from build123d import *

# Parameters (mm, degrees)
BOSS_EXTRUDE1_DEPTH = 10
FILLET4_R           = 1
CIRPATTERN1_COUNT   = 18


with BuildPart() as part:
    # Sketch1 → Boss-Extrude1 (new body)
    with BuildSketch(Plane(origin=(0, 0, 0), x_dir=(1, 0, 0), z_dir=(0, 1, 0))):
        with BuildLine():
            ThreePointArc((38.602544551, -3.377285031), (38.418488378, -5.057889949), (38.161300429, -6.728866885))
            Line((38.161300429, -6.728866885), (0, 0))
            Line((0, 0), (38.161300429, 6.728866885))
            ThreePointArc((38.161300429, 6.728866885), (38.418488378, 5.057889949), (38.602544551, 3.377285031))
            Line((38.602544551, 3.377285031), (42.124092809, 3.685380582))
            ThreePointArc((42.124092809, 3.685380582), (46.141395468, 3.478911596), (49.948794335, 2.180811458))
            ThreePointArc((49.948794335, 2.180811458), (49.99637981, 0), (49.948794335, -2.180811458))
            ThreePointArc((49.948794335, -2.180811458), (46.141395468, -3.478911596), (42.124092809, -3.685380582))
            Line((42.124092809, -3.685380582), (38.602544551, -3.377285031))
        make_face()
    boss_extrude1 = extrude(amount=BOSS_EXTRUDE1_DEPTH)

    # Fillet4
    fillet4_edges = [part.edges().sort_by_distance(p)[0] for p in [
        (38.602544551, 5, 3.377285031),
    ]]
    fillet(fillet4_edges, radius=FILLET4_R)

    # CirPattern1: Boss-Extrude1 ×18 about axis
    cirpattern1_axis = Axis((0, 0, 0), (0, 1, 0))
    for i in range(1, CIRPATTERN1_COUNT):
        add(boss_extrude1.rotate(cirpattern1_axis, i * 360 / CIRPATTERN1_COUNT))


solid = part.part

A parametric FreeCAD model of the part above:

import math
import FreeCAD as App
import Part
import Sketcher
Q = App.Units.Quantity


def edges_at(feature, points):
    """Names of the edges that pass closest to the given points."""
    edges = feature.Shape.Edges
    near = lambda p: min(range(len(edges)), key=lambda i: edges[i].distToShape(Part.Vertex(*p))[0])
    return sorted({f"Edge{near(p) + 1}" for p in points})

doc = App.newDocument("Part")
body = doc.addObject("PartDesign::Body", "Body")

sketch1 = body.newObject("Sketcher::SketchObject", "Sketch")
sketch1.AttachmentSupport = (doc.getObject("XZ_Plane"), [""])
sketch1.MapMode = "FlatFace"
sketch1.addGeometry([
    Part.ArcOfCircle(Part.Circle(App.Vector(0, 0, 0), App.Vector(0, 0, 1), 38.8), math.radians(5), math.radians(10)),
    Part.LineSegment(App.Vector(38.6, 3.4, 0), App.Vector(42.1, 3.7, 0)),
    Part.ArcOfCircle(Part.Circle(App.Vector(43.4, -10.8, 0), App.Vector(0, 0, 1), 14.6), math.radians(63), math.radians(95)),
    Part.ArcOfCircle(Part.Circle(App.Vector(0, 0, 0), App.Vector(0, 0, 1), 50), math.radians(-2.5), math.radians(2.5)),
    Part.ArcOfCircle(Part.Circle(App.Vector(43.4, 10.8, 0), App.Vector(0, 0, 1), 14.6), math.radians(-95), math.radians(-63)),
    Part.LineSegment(App.Vector(42.1, -3.7, 0), App.Vector(38.6, -3.4, 0)),
    Part.ArcOfCircle(Part.Circle(App.Vector(0, 0, 0), App.Vector(0, 0, 1), 38.8), math.radians(-10), math.radians(-5)),
    Part.LineSegment(App.Vector(38.2, -6.7, 0), App.Vector(0, 0, 0)),
    Part.LineSegment(App.Vector(0, 0, 0), App.Vector(38.2, 6.7, 0)),
], False)
sketch1.addConstraint([
    Sketcher.Constraint("Coincident", 0, 1, 1, 1),
    Sketcher.Constraint("Tangent", 1, 2, 2, 2),
    Sketcher.Constraint("Coincident", 2, 1, 3, 2),
    Sketcher.Constraint("Coincident", 3, 1, 4, 2),
    Sketcher.Constraint("Tangent", 4, 1, 5, 1),
    Sketcher.Constraint("Coincident", 5, 2, 6, 2),
    Sketcher.Constraint("Coincident", 6, 1, 7, 1),
    Sketcher.Constraint("Coincident", 7, 2, 8, 1),
    Sketcher.Constraint("Coincident", 8, 2, 0, 2),
    Sketcher.Constraint("Coincident", 0, 3, -1, 1),
    Sketcher.Constraint("Coincident", 3, 3, -1, 1),
    Sketcher.Constraint("Coincident", 6, 3, -1, 1),
    Sketcher.Constraint("Coincident", 7, 2, -1, 1),
    Sketcher.Constraint("Equal", 2, 4),
    Sketcher.Constraint("Equal", 0, 6),
    Sketcher.Constraint("Symmetric", 2, 3, 4, 3, -1),
    Sketcher.Constraint("Vertical", 1, 2, 4, 1),
    Sketcher.Constraint("Vertical", 6, 1, 8, 2),
    Sketcher.Constraint("Angle", 1, Q("5 deg")),
    Sketcher.Constraint("Angle", 7, Q("170 deg")),
    Sketcher.Constraint("Radius", 0, Q("38.75 mm")),
    Sketcher.Constraint("Radius", 3, Q("49.99638 mm")),
    Sketcher.Constraint("Distance", 1, Q("3.535 mm")),
    Sketcher.Constraint("Radius", 2, Q("14.556435 mm")),
    Sketcher.Constraint("DistanceX", 1, 2, 3, 1, Q("7.824702 mm")),
])
pad1 = body.newObject("PartDesign::Pad", "Pad")
pad1.Profile = sketch1
pad1.Length = 10
pad1.Reversed = True
doc.recompute()

fillet = body.newObject("PartDesign::Fillet", "Fillet")
fillet.Base = (pad1, edges_at(pad1, [(38.603, 5, 3.377)]))
fillet.Radius = 1
doc.recompute()

polarpattern = body.newObject("PartDesign::PolarPattern", "PolarPattern")
polarpattern.Originals = [pad1]
polarpattern.Axis = (doc.getObject("Y_Axis"), [""])
polarpattern.Angle = 360
polarpattern.Occurrences = 18
body.Tip = polarpattern

doc.recompute()
